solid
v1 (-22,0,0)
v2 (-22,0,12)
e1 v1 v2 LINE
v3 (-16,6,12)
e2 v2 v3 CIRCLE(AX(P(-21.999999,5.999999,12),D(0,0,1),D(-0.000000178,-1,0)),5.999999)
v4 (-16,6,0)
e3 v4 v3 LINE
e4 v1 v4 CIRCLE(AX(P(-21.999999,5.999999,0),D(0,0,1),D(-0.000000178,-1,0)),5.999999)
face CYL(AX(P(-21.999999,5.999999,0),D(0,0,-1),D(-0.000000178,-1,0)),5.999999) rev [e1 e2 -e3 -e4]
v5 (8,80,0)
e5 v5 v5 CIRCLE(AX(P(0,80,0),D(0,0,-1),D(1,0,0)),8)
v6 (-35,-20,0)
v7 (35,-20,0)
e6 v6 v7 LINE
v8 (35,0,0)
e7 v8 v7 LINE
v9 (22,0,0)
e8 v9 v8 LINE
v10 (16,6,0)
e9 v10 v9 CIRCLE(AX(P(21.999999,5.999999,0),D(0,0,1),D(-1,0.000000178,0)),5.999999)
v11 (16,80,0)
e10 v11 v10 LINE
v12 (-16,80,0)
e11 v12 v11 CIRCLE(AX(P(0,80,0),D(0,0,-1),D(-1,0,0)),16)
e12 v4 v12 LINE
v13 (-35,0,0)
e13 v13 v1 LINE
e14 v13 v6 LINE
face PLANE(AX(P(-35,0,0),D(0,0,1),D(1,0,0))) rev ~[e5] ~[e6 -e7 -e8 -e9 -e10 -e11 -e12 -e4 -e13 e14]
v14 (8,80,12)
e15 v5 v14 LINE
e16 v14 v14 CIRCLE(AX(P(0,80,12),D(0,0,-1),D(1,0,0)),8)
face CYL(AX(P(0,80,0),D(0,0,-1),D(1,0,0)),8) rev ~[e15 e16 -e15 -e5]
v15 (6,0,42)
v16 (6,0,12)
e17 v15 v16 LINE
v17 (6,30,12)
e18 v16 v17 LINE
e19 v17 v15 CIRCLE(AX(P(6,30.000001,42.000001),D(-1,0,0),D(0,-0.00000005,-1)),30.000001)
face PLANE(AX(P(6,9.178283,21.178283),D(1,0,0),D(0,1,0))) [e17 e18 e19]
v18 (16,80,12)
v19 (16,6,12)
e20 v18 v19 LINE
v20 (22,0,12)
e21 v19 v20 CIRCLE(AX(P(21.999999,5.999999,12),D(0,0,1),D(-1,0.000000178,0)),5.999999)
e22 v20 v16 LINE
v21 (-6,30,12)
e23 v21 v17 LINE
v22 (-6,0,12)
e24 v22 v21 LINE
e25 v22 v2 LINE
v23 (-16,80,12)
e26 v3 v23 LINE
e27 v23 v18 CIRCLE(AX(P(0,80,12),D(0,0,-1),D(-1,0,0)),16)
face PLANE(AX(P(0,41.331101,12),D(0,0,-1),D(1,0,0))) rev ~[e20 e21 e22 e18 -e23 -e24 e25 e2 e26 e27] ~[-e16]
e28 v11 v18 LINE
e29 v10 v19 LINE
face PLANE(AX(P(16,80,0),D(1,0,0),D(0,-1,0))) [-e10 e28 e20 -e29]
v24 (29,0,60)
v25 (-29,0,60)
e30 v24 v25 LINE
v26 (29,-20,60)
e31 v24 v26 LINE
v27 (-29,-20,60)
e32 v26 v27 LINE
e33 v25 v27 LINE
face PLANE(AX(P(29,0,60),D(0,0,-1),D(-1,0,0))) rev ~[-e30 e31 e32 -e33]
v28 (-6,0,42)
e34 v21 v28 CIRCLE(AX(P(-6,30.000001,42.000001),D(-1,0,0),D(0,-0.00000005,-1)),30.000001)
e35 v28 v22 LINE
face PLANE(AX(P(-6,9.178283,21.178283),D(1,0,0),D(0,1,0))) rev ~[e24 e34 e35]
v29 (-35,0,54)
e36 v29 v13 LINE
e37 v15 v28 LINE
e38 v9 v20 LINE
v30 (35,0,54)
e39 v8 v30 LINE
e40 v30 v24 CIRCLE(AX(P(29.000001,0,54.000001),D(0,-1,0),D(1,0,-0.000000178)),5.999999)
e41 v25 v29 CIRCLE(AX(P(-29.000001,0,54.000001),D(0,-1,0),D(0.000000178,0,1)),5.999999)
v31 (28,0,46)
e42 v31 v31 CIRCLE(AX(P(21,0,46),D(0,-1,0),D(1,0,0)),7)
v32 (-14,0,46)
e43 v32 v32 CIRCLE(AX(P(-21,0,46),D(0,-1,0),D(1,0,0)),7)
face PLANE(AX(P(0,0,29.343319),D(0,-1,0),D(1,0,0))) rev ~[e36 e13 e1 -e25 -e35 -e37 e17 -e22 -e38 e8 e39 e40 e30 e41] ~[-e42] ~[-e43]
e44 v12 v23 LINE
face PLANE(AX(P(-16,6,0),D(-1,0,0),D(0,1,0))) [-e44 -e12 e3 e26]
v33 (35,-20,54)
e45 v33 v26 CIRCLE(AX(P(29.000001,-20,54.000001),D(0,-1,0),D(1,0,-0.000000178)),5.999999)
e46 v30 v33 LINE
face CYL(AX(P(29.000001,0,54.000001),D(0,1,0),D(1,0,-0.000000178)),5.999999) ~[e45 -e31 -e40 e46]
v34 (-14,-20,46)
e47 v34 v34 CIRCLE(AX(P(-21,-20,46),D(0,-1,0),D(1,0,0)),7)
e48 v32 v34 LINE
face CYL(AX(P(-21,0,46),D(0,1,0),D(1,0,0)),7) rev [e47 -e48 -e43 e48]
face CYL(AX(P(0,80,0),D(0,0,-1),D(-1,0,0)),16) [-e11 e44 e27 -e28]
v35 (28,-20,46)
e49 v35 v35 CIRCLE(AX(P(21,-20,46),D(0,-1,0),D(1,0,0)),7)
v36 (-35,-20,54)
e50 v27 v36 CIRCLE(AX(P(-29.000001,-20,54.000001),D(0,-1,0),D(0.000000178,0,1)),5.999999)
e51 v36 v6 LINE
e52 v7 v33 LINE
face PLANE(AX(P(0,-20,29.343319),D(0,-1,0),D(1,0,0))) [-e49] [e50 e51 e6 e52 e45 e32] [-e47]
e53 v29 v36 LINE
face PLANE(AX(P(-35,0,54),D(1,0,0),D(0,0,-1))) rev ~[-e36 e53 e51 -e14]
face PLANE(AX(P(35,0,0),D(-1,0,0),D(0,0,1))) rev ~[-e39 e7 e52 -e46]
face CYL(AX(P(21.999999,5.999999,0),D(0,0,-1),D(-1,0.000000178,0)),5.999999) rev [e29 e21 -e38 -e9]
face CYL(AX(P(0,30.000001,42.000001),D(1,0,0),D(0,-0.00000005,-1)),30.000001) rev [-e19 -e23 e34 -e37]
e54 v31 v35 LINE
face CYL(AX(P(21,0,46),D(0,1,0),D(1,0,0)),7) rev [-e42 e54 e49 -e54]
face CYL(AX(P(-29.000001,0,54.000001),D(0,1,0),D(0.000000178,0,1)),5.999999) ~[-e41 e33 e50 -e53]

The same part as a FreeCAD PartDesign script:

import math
import FreeCAD as App
import Part
import Sketcher
from FreeCAD import Vector
Q = App.Units.Quantity


def add_polygon(sketch, points):
    """Adds a closed chain of lines whose ends are joined by coincident constraints."""
    first, n = sketch.GeometryCount, len(points)
    for a, b in zip(points, points[1:] + points[:1]):
        sketch.addGeometry(Part.LineSegment(App.Vector(*a, 0), App.Vector(*b, 0)), False)
    for i in range(n):
        sketch.addConstraint(Sketcher.Constraint("Coincident", first + i, 2, first + (i + 1) % n, 1))

doc = App.newDocument("Part")
body = doc.addObject("PartDesign::Body", "Body")

sketch1 = doc.addObject("Sketcher::SketchObject", "Sketch")
body.addObject(sketch1)
sketch1.AttachmentSupport = (doc.XZ_Plane, [""])
sketch1.MapMode = "FlatFace"
sketch1.addGeometry(Part.LineSegment(Vector(-35, 54, 0), Vector(-35, 0, 0)), False)
sketch1.addGeometry(Part.LineSegment(Vector(-35, 0, 0), Vector(35, 0, 0)), False)
sketch1.addGeometry(Part.LineSegment(Vector(35, 0, 0), Vector(35, 54, 0)), False)
sketch1.addGeometry(Part.ArcOfCircle(Part.Circle(Vector(29, 54, 0), Vector(0, 0, 1), 6), math.radians(0), math.radians(90)), False)
sketch1.addGeometry(Part.LineSegment(Vector(29, 60, 0), Vector(-29, 60, 0)), False)
sketch1.addGeometry(Part.ArcOfCircle(Part.Circle(Vector(-29, 54, 0), Vector(0, 0, 1), 6), math.radians(90), math.radians(180)), False)
sketch1.addGeometry(Part.Circle(Vector(-21, 46, 0), Vector(0, 0, 1), 7), False)
sketch1.addGeometry(Part.Circle(Vector(21, 46, 0), Vector(0, 0, 1), 7), False)
sketch1.addConstraint(Sketcher.Constraint("Coincident", 0, 2, 1, 1))
sketch1.addConstraint(Sketcher.Constraint("Coincident", 1, 2, 2, 1))
sketch1.addConstraint(Sketcher.Constraint("Tangent", 2, 2, 3, 1))
sketch1.addConstraint(Sketcher.Constraint("Tangent", 3, 2, 4, 1))
sketch1.addConstraint(Sketcher.Constraint("Tangent", 4, 2, 5, 1))
sketch1.addConstraint(Sketcher.Constraint("Tangent", 5, 2, 0, 1))
sketch1.addConstraint(Sketcher.Constraint("Vertical", 0))
sketch1.addConstraint(Sketcher.Constraint("Horizontal", 1))
sketch1.addConstraint(Sketcher.Constraint("Vertical", 2))
sketch1.addConstraint(Sketcher.Constraint("Horizontal", 4))
sketch1.addConstraint(Sketcher.Constraint("Equal", 3, 5))
sketch1.addConstraint(Sketcher.Constraint("Equal", 6, 7))
sketch1.addConstraint(Sketcher.Constraint("Symmetric", 0, 2, 1, 2, -1, 1))
sketch1.addConstraint(Sketcher.Constraint("Symmetric", 6, 3, 7, 3, -2))
sketch1.addConstraint(Sketcher.Constraint("Diameter", 6, Q("14 mm")))
sketch1.addConstraint(Sketcher.Constraint("Radius", 3, Q("5.999999 mm")))
sketch1.addConstraint(Sketcher.Constraint("DistanceX", 1, 1, 1, 2, Q("70 mm")))
sketch1.addConstraint(Sketcher.Constraint("DistanceY", 0, 2, 0, 1, Q("54 mm")))
sketch1.addConstraint(Sketcher.Constraint("DistanceX", 6, 3, -1, 1, Q("21 mm")))
sketch1.addConstraint(Sketcher.Constraint("DistanceY", -1, 1, 6, 3, Q("46 mm")))
pad1 = doc.addObject("PartDesign::Pad", "Pad")
body.addObject(pad1)
pad1.Profile = sketch1
pad1.Length = 20

sketch2 = doc.addObject("Sketcher::SketchObject", "Sketch001")
body.addObject(sketch2)
sketch2.AttachmentSupport = (doc.XY_Plane, [""])
sketch2.MapMode = "FlatFace"
sketch2.addGeometry(Part.LineSegment(Vector(22, 0, 0), Vector(-22, 0, 0)), False)
sketch2.addGeometry(Part.ArcOfCircle(Part.Circle(Vector(-22, 6, 0), Vector(0, 0, 1), 6), math.radians(-90), math.radians(0)), False)
sketch2.addGeometry(Part.LineSegment(Vector(-16, 6, 0), Vector(-16, 80, 0)), False)
sketch2.addGeometry(Part.ArcOfCircle(Part.Circle(Vector(0, 80, 0), Vector(0, 0, 1), 16), math.radians(0), math.radians(180)), False)
sketch2.addGeometry(Part.LineSegment(Vector(16, 80, 0), Vector(16, 6, 0)), False)
sketch2.addGeometry(Part.ArcOfCircle(Part.Circle(Vector(22, 6, 0), Vector(0, 0, 1), 6), math.radians(180), math.radians(270)), False)
sketch2.addGeometry(Part.Circle(Vector(0, 80, 0), Vector(0, 0, 1), 8), False)
sketch2.addConstraint(Sketcher.Constraint("Tangent", 0, 2, 1, 1))
sketch2.addConstraint(Sketcher.Constraint("Tangent", 1, 2, 2, 1))
sketch2.addConstraint(Sketcher.Constraint("Tangent", 2, 2, 3, 2))
sketch2.addConstraint(Sketcher.Constraint("Tangent", 3, 1, 4, 1))
sketch2.addConstraint(Sketcher.Constraint("Tangent", 4, 2, 5, 1))
sketch2.addConstraint(Sketcher.Constraint("Tangent", 5, 2, 0, 1))
sketch2.addConstraint(Sketcher.Constraint("Horizontal", 0))
sketch2.addConstraint(Sketcher.Constraint("Vertical", 2))
sketch2.addConstraint(Sketcher.Constraint("Vertical", 4))
sketch2.addConstraint(Sketcher.Constraint("Coincident", 6, 3, 3, 3))
sketch2.addConstraint(Sketcher.Constraint("Equal", 1, 5))
sketch2.addConstraint(Sketcher.Constraint("Symmetric", 0, 2, 5, 2, -1, 1))
sketch2.addConstraint(Sketcher.Constraint("Diameter", 6, Q("16 mm")))
sketch2.addConstraint(Sketcher.Constraint("Radius", 1, Q("5.999999 mm")))
sketch2.addConstraint(Sketcher.Constraint("Radius", 3, Q("16 mm")))
sketch2.addConstraint(Sketcher.Constraint("DistanceY", 2, 1, 2, 2, Q("74 mm")))
pad2 = doc.addObject("PartDesign::Pad", "Pad001")
body.addObject(pad2)
pad2.Profile = sketch2
pad2.Length = 12

sketch3 = doc.addObject("Sketcher::SketchObject", "Sketch002")
body.addObject(sketch3)
sketch3.AttachmentSupport = (doc.YZ_Plane, [""])
sketch3.MapMode = "FlatFace"
sketch3.addGeometry(Part.LineSegment(Vector(0, 12, 0), Vector(30, 12, 0)), False)
sketch3.addGeometry(Part.ArcOfCircle(Part.Circle(Vector(30, 42, 0), Vector(0, 0, 1), 30), math.radians(-180), math.radians(-90)), False)
sketch3.addGeometry(Part.LineSegment(Vector(0, 42, 0), Vector(0, 12, 0)), False)
sketch3.addConstraint(Sketcher.Constraint("Tangent", 0, 2, 1, 2))
sketch3.addConstraint(Sketcher.Constraint("Tangent", 1, 1, 2, 1))
sketch3.addConstraint(Sketcher.Constraint("Coincident", 2, 2, 0, 1))
sketch3.addConstraint(Sketcher.Constraint("Horizontal", 0))
sketch3.addConstraint(Sketcher.Constraint("Vertical", 2))
sketch3.addConstraint(Sketcher.Constraint("PointOnObject", 1, 1, -2))
sketch3.addConstraint(Sketcher.Constraint("Radius", 1, Q("30.000001 mm")))
sketch3.addConstraint(Sketcher.Constraint("DistanceY", -1, 1, 1, 3, Q("42.000001 mm")))
pad3 = doc.addObject("PartDesign::Pad", "Pad002")
body.addObject(pad3)
pad3.Profile = sketch3
pad3.Length = 12
pad3.Midplane = True
body2 = doc.addObject("PartDesign::Body", "Body001")

sketch4 = doc.addObject("Sketcher::SketchObject", "Sketch003")
body2.addObject(sketch4)
sketch4.AttachmentSupport = (doc.getObject("YZ_Plane001"), [""])
sketch4.MapMode = "FlatFace"
add_polygon(sketch4, [(9, -96), (45, -96), (45, -23), (9, -23)])
sketch4.addConstraint(Sketcher.Constraint("Horizontal", 0))
sketch4.addConstraint(Sketcher.Constraint("Vertical", 1))
sketch4.addConstraint(Sketcher.Constraint("Horizontal", 2))
sketch4.addConstraint(Sketcher.Constraint("Vertical", 3))
sketch4.addConstraint(Sketcher.Constraint("DistanceX", 0, 1, 0, 2, Q("36.028717 mm")))
sketch4.addConstraint(Sketcher.Constraint("DistanceY", 1, 1, 1, 2, Q("72.416524 mm")))
sketch4.addConstraint(Sketcher.Constraint("DistanceY", 1, 2, -1, 1, Q("23.484161 mm")))
sketch4.addConstraint(Sketcher.Constraint("DistanceX", -1, 1, 0, 2, Q("44.855885 mm")))
pad4 = doc.addObject("PartDesign::Pad", "Pad003")
body2.addObject(pad4)
pad4.Profile = sketch4
pad4.Length = 25
body2.Visibility = False

doc.recompute()
